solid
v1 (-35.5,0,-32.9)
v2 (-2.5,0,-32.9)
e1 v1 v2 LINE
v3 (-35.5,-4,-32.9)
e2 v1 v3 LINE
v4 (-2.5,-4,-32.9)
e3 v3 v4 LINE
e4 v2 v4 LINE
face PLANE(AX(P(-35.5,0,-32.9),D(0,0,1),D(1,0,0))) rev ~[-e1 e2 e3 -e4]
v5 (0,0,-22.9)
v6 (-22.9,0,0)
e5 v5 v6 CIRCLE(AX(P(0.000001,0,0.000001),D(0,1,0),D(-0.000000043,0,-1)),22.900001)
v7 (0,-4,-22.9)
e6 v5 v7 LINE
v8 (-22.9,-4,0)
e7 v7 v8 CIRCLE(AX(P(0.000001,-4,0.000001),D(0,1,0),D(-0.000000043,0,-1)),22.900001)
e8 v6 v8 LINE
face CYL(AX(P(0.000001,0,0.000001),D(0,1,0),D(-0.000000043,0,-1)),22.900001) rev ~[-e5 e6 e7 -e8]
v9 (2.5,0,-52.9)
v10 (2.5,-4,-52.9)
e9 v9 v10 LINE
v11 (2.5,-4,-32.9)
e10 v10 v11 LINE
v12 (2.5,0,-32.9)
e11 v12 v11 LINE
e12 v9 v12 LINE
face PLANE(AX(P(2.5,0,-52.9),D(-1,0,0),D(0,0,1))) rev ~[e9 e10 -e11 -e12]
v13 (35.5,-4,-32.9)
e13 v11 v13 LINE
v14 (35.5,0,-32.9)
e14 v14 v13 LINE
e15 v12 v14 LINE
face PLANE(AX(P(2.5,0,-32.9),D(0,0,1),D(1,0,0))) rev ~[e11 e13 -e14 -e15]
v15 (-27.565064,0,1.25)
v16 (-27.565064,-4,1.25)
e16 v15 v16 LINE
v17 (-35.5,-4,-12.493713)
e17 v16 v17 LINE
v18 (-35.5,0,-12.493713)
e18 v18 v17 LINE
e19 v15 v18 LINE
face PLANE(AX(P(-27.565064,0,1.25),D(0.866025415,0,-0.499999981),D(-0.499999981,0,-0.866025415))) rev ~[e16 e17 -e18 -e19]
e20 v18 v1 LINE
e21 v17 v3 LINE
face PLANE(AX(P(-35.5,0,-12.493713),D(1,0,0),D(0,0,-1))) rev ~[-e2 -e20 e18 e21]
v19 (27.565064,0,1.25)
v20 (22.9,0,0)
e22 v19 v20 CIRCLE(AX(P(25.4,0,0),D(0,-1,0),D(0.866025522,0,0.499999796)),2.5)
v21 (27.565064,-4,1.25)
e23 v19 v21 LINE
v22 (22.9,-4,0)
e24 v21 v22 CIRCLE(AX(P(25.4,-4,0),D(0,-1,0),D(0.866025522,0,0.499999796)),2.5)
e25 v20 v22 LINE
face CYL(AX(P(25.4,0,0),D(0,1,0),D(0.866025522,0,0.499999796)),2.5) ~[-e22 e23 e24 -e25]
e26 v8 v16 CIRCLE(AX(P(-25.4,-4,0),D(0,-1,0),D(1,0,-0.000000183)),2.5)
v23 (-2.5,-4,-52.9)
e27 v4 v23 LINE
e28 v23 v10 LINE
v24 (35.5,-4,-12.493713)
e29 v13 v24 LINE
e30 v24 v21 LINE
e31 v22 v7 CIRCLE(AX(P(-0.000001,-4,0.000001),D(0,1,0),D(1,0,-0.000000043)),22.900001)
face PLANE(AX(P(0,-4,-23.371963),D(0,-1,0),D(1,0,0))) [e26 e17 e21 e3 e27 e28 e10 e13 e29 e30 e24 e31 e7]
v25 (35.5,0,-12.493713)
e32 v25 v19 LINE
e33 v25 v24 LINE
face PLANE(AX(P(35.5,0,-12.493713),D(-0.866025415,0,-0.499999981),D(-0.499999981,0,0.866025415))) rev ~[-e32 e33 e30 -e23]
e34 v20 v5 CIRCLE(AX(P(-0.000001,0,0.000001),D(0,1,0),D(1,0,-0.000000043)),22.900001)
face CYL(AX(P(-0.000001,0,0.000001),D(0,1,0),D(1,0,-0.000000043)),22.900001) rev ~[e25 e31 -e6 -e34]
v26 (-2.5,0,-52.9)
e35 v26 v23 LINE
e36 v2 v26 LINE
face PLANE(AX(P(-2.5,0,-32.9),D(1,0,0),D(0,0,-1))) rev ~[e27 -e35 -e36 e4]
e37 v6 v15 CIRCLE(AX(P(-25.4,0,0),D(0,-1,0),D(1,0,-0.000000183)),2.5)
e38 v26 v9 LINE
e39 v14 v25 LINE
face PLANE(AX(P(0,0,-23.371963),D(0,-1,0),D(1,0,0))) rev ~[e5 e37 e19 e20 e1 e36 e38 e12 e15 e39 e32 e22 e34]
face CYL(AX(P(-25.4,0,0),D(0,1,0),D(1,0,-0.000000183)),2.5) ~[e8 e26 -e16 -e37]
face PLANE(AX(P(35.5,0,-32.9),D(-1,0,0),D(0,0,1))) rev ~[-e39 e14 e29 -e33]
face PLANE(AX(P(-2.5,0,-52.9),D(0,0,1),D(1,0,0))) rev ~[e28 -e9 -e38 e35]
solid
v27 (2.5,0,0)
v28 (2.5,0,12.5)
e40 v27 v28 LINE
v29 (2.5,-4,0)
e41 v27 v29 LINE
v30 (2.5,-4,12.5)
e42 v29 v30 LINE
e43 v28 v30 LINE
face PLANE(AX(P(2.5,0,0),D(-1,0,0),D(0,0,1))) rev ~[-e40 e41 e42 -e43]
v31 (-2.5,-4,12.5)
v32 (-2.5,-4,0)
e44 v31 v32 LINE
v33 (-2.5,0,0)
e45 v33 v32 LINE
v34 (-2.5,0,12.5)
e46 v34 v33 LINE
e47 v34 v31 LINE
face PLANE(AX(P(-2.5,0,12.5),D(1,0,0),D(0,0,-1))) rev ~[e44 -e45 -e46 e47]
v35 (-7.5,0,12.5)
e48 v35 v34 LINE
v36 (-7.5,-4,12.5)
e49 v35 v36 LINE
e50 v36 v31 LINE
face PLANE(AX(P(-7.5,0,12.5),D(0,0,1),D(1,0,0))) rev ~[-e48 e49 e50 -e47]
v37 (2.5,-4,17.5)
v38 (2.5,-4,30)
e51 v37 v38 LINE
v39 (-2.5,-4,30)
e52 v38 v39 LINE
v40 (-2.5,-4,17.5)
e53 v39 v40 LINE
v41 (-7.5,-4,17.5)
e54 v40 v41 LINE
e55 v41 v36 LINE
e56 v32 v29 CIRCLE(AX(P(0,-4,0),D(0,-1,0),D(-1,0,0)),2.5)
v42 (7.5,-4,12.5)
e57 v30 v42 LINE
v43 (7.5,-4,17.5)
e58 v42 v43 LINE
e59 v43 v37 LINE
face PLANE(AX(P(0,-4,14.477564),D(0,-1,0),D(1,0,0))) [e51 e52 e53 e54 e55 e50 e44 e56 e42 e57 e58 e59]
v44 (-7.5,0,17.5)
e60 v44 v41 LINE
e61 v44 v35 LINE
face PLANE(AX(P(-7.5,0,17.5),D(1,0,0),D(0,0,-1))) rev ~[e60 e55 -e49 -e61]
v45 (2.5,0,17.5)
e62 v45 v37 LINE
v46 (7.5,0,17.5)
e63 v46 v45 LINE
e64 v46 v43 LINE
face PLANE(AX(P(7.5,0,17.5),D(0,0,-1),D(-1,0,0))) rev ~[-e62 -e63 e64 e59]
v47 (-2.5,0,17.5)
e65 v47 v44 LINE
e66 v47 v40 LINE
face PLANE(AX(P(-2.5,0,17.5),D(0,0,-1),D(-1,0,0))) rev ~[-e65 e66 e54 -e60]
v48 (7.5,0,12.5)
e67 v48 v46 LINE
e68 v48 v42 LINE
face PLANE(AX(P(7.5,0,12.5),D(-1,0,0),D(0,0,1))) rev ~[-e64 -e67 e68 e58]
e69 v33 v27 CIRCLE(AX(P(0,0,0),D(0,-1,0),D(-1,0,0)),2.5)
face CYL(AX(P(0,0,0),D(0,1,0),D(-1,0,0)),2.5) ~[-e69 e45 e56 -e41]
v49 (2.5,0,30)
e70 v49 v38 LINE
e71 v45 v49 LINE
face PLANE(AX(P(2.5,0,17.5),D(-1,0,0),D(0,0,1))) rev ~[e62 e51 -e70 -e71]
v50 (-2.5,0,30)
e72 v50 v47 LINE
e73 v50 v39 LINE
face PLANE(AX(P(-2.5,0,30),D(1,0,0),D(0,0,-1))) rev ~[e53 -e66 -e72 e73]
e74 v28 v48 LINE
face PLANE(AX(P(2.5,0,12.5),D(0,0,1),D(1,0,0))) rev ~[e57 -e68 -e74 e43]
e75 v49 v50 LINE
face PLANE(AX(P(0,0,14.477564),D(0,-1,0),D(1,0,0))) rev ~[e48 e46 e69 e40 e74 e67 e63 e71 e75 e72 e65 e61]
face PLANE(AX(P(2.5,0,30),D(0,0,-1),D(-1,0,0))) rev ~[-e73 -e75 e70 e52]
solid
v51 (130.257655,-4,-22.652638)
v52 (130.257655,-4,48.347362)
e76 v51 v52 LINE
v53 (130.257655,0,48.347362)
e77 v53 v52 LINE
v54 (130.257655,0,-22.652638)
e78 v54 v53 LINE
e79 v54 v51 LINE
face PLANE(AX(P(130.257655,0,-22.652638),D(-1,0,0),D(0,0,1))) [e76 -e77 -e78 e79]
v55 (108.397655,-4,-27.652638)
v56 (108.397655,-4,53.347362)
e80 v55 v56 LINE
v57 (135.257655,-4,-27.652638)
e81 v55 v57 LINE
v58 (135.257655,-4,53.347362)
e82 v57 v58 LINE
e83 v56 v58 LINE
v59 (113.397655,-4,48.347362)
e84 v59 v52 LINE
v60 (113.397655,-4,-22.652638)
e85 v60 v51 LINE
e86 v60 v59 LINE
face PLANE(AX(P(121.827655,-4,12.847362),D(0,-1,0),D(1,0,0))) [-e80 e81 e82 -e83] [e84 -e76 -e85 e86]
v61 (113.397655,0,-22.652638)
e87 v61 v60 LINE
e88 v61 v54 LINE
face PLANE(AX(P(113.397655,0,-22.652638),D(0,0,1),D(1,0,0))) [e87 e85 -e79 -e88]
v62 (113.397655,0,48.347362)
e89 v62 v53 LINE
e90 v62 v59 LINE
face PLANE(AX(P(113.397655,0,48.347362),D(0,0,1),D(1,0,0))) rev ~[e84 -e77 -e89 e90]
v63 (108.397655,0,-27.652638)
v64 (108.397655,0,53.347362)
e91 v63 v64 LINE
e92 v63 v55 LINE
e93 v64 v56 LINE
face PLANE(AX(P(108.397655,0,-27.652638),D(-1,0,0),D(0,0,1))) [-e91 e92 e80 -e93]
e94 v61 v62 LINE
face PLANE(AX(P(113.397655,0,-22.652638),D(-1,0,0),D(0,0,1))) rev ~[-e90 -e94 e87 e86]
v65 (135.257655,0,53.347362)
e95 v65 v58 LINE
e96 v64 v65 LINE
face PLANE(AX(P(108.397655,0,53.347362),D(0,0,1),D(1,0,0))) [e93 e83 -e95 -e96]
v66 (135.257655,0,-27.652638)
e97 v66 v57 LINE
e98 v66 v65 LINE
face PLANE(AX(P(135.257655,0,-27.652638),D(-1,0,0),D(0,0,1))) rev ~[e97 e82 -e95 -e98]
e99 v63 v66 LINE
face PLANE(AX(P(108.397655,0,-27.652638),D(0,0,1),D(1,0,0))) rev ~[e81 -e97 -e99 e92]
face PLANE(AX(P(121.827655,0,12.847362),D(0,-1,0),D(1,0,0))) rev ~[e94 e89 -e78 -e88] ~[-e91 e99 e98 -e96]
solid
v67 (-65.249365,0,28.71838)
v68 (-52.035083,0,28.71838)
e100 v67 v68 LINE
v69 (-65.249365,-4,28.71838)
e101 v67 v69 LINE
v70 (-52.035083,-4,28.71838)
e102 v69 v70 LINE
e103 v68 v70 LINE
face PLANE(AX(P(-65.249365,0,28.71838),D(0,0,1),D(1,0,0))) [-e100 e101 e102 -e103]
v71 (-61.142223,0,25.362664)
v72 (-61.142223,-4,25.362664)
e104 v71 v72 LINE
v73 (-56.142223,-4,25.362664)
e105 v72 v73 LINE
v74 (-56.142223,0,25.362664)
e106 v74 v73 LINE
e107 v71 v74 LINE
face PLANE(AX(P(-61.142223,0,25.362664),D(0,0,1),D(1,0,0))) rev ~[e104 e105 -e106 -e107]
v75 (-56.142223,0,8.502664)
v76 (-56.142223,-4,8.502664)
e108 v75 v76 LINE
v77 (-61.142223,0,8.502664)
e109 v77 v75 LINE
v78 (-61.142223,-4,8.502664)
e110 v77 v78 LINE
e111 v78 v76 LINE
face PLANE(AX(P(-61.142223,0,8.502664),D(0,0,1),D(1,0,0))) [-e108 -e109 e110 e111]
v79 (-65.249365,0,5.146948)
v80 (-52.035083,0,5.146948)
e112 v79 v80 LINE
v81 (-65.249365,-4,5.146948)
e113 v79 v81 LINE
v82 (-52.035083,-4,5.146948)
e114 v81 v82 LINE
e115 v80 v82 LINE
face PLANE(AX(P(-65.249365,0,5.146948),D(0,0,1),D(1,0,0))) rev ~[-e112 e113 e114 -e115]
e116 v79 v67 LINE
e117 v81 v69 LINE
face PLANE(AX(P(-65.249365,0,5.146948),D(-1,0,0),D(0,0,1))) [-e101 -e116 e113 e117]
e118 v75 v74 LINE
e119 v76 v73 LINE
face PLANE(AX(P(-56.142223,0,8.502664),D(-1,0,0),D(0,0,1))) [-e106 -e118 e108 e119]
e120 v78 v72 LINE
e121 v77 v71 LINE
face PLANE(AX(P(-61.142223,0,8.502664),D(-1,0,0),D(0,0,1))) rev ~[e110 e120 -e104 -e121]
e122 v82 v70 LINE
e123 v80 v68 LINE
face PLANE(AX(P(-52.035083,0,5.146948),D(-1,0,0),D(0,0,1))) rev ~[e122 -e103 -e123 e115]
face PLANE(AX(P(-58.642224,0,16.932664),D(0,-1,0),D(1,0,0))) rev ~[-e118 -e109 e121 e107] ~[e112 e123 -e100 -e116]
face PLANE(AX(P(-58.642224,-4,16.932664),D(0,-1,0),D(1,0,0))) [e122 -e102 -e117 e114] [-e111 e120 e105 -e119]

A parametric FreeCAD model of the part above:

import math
import FreeCAD as App
import Part
import Sketcher

V = App.Vector
Q = App.Units.Quantity

doc = App.newDocument("Part")
body = doc.addObject("PartDesign::Body", "Body")
body.AllowCompound = True

sketch1 = body.newObject("Sketcher::SketchObject", "Sketch")
sketch1.AttachmentSupport = (doc.getObject("XZ_Plane"), [""])
sketch1.MapMode = "FlatFace"
sketch1.addGeometry(Part.ArcOfCircle(Part.Circle(V(0.000001, 0.000001, 0), V(0, 0, 1), 22.900001), math.radians(-179.999998), math.radians(-90.000002)), False)
sketch1.addGeometry(Part.ArcOfCircle(Part.Circle(V(-25.4, 0, 0), V(0, 0, 1), 2.5), math.radians(-0.00001), math.radians(150.000013)), False)
sketch1.addGeometry(Part.LineSegment(V(-27.565064, 1.25, 0), V(-35.5, -12.493713, 0)), False)
sketch1.addGeometry(Part.LineSegment(V(-35.5, -12.493713, 0), V(-35.5, -32.9, 0)), False)
sketch1.addGeometry(Part.LineSegment(V(-35.5, -32.9, 0), V(-2.5, -32.9, 0)), False)
sketch1.addGeometry(Part.LineSegment(V(-2.5, -32.9, 0), V(-2.5, -52.9, 0)), False)
sketch1.addGeometry(Part.LineSegment(V(-2.5, -52.9, 0), V(2.5, -52.9, 0)), False)
sketch1.addGeometry(Part.LineSegment(V(2.5, -52.9, 0), V(2.5, -32.9, 0)), False)
sketch1.addGeometry(Part.LineSegment(V(2.5, -32.9, 0), V(35.5, -32.9, 0)), False)
sketch1.addGeometry(Part.LineSegment(V(35.5, -32.9, 0), V(35.5, -12.493713, 0)), False)
sketch1.addGeometry(Part.LineSegment(V(35.5, -12.493713, 0), V(27.565064, 1.25, 0)), False)
sketch1.addGeometry(Part.ArcOfCircle(Part.Circle(V(25.4, 0, 0), V(0, 0, 1), 2.5), math.radians(29.999987), math.radians(180.00001)), False)
sketch1.addGeometry(Part.ArcOfCircle(Part.Circle(V(-0.000001, 0.000001, 0), V(0, 0, 1), 22.900001), math.radians(-89.999998), math.radians(-0.000002)), False)
sketch1.addGeometry(Part.LineSegment(V(-2.5, 12.5, 0), V(-2.5, 0, 0)), False)
sketch1.addGeometry(Part.ArcOfCircle(Part.Circle(V(0, 0, 0), V(0, 0, 1), 2.5), math.radians(180), math.radians(360)), False)
sketch1.addGeometry(Part.LineSegment(V(2.5, 0, 0), V(2.5, 12.5, 0)), False)
sketch1.addGeometry(Part.LineSegment(V(2.5, 12.5, 0), V(7.5, 12.5, 0)), False)
sketch1.addGeometry(Part.LineSegment(V(7.5, 12.5, 0), V(7.5, 17.5, 0)), False)
sketch1.addGeometry(Part.LineSegment(V(7.5, 17.5, 0), V(2.5, 17.5, 0)), False)
sketch1.addGeometry(Part.LineSegment(V(2.5, 17.5, 0), V(2.5, 30, 0)), False)
sketch1.addGeometry(Part.LineSegment(V(2.5, 30, 0), V(-2.5, 30, 0)), False)
sketch1.addGeometry(Part.LineSegment(V(-2.5, 30, 0), V(-2.5, 17.5, 0)), False)
sketch1.addGeometry(Part.LineSegment(V(-2.5, 17.5, 0), V(-7.5, 17.5, 0)), False)
sketch1.addGeometry(Part.LineSegment(V(-7.5, 17.5, 0), V(-7.5, 12.5, 0)), False)
sketch1.addGeometry(Part.LineSegment(V(-7.5, 12.5, 0), V(-2.5, 12.5, 0)), False)
sketch1.addConstraint(Sketcher.Constraint("Tangent", 0, 1, 1, 1))
sketch1.addConstraint(Sketcher.Constraint("Tangent", 1, 2, 2, 1))
sketch1.addConstraint(Sketcher.Constraint("Coincident", 2, 2, 3, 1))
sketch1.addConstraint(Sketcher.Constraint("Coincident", 3, 2, 4, 1))
sketch1.addConstraint(Sketcher.Constraint("Coincident", 4, 2, 5, 1))
sketch1.addConstraint(Sketcher.Constraint("Coincident", 5, 2, 6, 1))
sketch1.addConstraint(Sketcher.Constraint("Coincident", 6, 2, 7, 1))
sketch1.addConstraint(Sketcher.Constraint("Coincident", 7, 2, 8, 1))
sketch1.addConstraint(Sketcher.Constraint("Coincident", 8, 2, 9, 1))
sketch1.addConstraint(Sketcher.Constraint("Coincident", 9, 2, 10, 1))
sketch1.addConstraint(Sketcher.Constraint("Tangent", 10, 2, 11, 1))
sketch1.addConstraint(Sketcher.Constraint("Tangent", 11, 2, 12, 2))
sketch1.addConstraint(Sketcher.Constraint("Tangent", 12, 1, 0, 2))
sketch1.addConstraint(Sketcher.Constraint("Tangent", 13, 2, 14, 1))
sketch1.addConstraint(Sketcher.Constraint("Tangent", 14, 2, 15, 1))
sketch1.addConstraint(Sketcher.Constraint("Coincident", 15, 2, 16, 1))
sketch1.addConstraint(Sketcher.Constraint("Coincident", 16, 2, 17, 1))
sketch1.addConstraint(Sketcher.Constraint("Coincident", 17, 2, 18, 1))
sketch1.addConstraint(Sketcher.Constraint("Coincident", 18, 2, 19, 1))
sketch1.addConstraint(Sketcher.Constraint("Coincident", 19, 2, 20, 1))
sketch1.addConstraint(Sketcher.Constraint("Coincident", 20, 2, 21, 1))
sketch1.addConstraint(Sketcher.Constraint("Coincident", 21, 2, 22, 1))
sketch1.addConstraint(Sketcher.Constraint("Coincident", 22, 2, 23, 1))
sketch1.addConstraint(Sketcher.Constraint("Coincident", 23, 2, 24, 1))
sketch1.addConstraint(Sketcher.Constraint("Coincident", 24, 2, 13, 1))
sketch1.addConstraint(Sketcher.Constraint("Vertical", 3))
sketch1.addConstraint(Sketcher.Constraint("Horizontal", 4))
sketch1.addConstraint(Sketcher.Constraint("Vertical", 5))
sketch1.addConstraint(Sketcher.Constraint("Horizontal", 6))
sketch1.addConstraint(Sketcher.Constraint("Vertical", 7))
sketch1.addConstraint(Sketcher.Constraint("Horizontal", 8))
sketch1.addConstraint(Sketcher.Constraint("Vertical", 9))
sketch1.addConstraint(Sketcher.Constraint("Vertical", 13))
sketch1.addConstraint(Sketcher.Constraint("Vertical", 15))
sketch1.addConstraint(Sketcher.Constraint("Horizontal", 16))
sketch1.addConstraint(Sketcher.Constraint("Vertical", 17))
sketch1.addConstraint(Sketcher.Constraint("Horizontal", 18))
sketch1.addConstraint(Sketcher.Constraint("Vertical", 19))
sketch1.addConstraint(Sketcher.Constraint("Horizontal", 20))
sketch1.addConstraint(Sketcher.Constraint("Vertical", 21))
sketch1.addConstraint(Sketcher.Constraint("Horizontal", 22))
sketch1.addConstraint(Sketcher.Constraint("Vertical", 23))
sketch1.addConstraint(Sketcher.Constraint("Horizontal", 24))
sketch1.addConstraint(Sketcher.Constraint("Coincident", 0, 3, -1, 1))
sketch1.addConstraint(Sketcher.Constraint("Coincident", 14, 3, -1, 1))
sketch1.addConstraint(Sketcher.Constraint("Equal", 1, 11))
sketch1.addConstraint(Sketcher.Constraint("Equal", 0, 12))
sketch1.addConstraint(Sketcher.Constraint("Equal", 11, 14))
sketch1.addConstraint(Sketcher.Constraint("Symmetric", 4, 2, 7, 2, -2))
sketch1.addConstraint(Sketcher.Constraint("Symmetric", 2, 2, 9, 2, -2))
sketch1.addConstraint(Sketcher.Constraint("Symmetric", 18, 2, 21, 2, -2))
sketch1.addConstraint(Sketcher.Constraint("Symmetric", 16, 2, 23, 2, -2))
sketch1.addConstraint(Sketcher.Constraint("PointOnObject", 1, 3, -1))
sketch1.addConstraint(Sketcher.Constraint("PointOnObject", 11, 3, -1))
sketch1.addConstraint(Sketcher.Constraint("PointOnObject", 12, 1, -2))
sketch1.addConstraint(Sketcher.Constraint("Vertical", 5, 2, 13, 2))
sketch1.addConstraint(Sketcher.Constraint("Vertical", 15, 2, 18, 2))
sketch1.addConstraint(Sketcher.Constraint("Equal", 6, 16))
sketch1.addConstraint(Sketcher.Constraint("Equal", 24, 17))
sketch1.addConstraint(Sketcher.Constraint("Equal", 15, 19))
sketch1.addConstraint(Sketcher.Constraint("Radius", 0, Q("22.900001 mm")))
sketch1.addConstraint(Sketcher.Constraint("Radius", 1, Q("2.5 mm")))
sketch1.addConstraint(Sketcher.Constraint("DistanceX", 4, 1, 4, 2, Q("33 mm")))
sketch1.addConstraint(Sketcher.Constraint("DistanceY", 5, 2, 5, 1, Q("20 mm")))
sketch1.addConstraint(Sketcher.Constraint("Angle", 2, Q("-119.999999 deg")))
sketch1.addConstraint(Sketcher.Constraint("DistanceY", 13, 2, 13, 1, Q("12.5 mm")))
sketch1.addConstraint(Sketcher.Constraint("DistanceY", 4, 2, 12, 1, Q("10 mm")))
pad1 = body.newObject("PartDesign::Pad", "Pad")
pad1.Profile = sketch1
pad1.Length = 4
body2 = doc.addObject("PartDesign::Body", "Body001")
body2.AllowCompound = True

sketch2 = body2.newObject("Sketcher::SketchObject", "Sketch001")
sketch2.AttachmentSupport = (doc.getObject("XZ_Plane001"), [""])
sketch2.MapMode = "FlatFace"
sketch2.addGeometry(Part.LineSegment(V(-65.249365, 28.71838, 0), V(-65.249365, 5.146948, 0)), False)
sketch2.addGeometry(Part.LineSegment(V(-65.249365, 5.146948, 0), V(-52.035083, 5.146948, 0)), False)
sketch2.addGeometry(Part.LineSegment(V(-52.035083, 5.146948, 0), V(-52.035083, 28.71838, 0)), False)
sketch2.addGeometry(Part.LineSegment(V(-52.035083, 28.71838, 0), V(-65.249365, 28.71838, 0)), False)
sketch2.addGeometry(Part.LineSegment(V(-56.142223, 8.502664, 0), V(-61.142223, 8.502664, 0)), False)
sketch2.addGeometry(Part.LineSegment(V(-61.142223, 8.502664, 0), V(-61.142223, 25.362664, 0)), False)
sketch2.addGeometry(Part.LineSegment(V(-61.142223, 25.362664, 0), V(-56.142223, 25.362664, 0)), False)
sketch2.addGeometry(Part.LineSegment(V(-56.142223, 25.362664, 0), V(-56.142223, 8.502664, 0)), False)
sketch2.addGeometry(Part.LineSegment(V(108.397655, 53.347362, 0), V(108.397655, -27.652638, 0)), False)
sketch2.addGeometry(Part.LineSegment(V(108.397655, -27.652638, 0), V(135.257655, -27.652638, 0)), False)
sketch2.addGeometry(Part.LineSegment(V(135.257655, -27.652638, 0), V(135.257655, 53.347362, 0)), False)
sketch2.addGeometry(Part.LineSegment(V(135.257655, 53.347362, 0), V(108.397655, 53.347362, 0)), False)
sketch2.addGeometry(Part.LineSegment(V(130.257655, -22.652638, 0), V(113.397655, -22.652638, 0)), False)
sketch2.addGeometry(Part.LineSegment(V(113.397655, -22.652638, 0), V(113.397655, 48.347362, 0)), False)
sketch2.addGeometry(Part.LineSegment(V(113.397655, 48.347362, 0), V(130.257655, 48.347362, 0)), False)
sketch2.addGeometry(Part.LineSegment(V(130.257655, 48.347362, 0), V(130.257655, -22.652638, 0)), False)
sketch2.addConstraint(Sketcher.Constraint("Coincident", 0, 2, 1, 1))
sketch2.addConstraint(Sketcher.Constraint("Coincident", 1, 2, 2, 1))
sketch2.addConstraint(Sketcher.Constraint("Coincident", 2, 2, 3, 1))
sketch2.addConstraint(Sketcher.Constraint("Coincident", 3, 2, 0, 1))
sketch2.addConstraint(Sketcher.Constraint("Coincident", 4, 2, 5, 1))
sketch2.addConstraint(Sketcher.Constraint("Coincident", 5, 2, 6, 1))
sketch2.addConstraint(Sketcher.Constraint("Coincident", 6, 2, 7, 1))
sketch2.addConstraint(Sketcher.Constraint("Coincident", 7, 2, 4, 1))
sketch2.addConstraint(Sketcher.Constraint("Coincident", 8, 2, 9, 1))
sketch2.addConstraint(Sketcher.Constraint("Coincident", 9, 2, 10, 1))
sketch2.addConstraint(Sketcher.Constraint("Coincident", 10, 2, 11, 1))
sketch2.addConstraint(Sketcher.Constraint("Coincident", 11, 2, 8, 1))
sketch2.addConstraint(Sketcher.Constraint("Coincident", 12, 2, 13, 1))
sketch2.addConstraint(Sketcher.Constraint("Coincident", 13, 2, 14, 1))
sketch2.addConstraint(Sketcher.Constraint("Coincident", 14, 2, 15, 1))
sketch2.addConstraint(Sketcher.Constraint("Coincident", 15, 2, 12, 1))
sketch2.addConstraint(Sketcher.Constraint("Vertical", 0))
sketch2.addConstraint(Sketcher.Constraint("Horizontal", 1))
sketch2.addConstraint(Sketcher.Constraint("Vertical", 2))
sketch2.addConstraint(Sketcher.Constraint("Horizontal", 3))
sketch2.addConstraint(Sketcher.Constraint("Horizontal", 4))
sketch2.addConstraint(Sketcher.Constraint("Vertical", 5))
sketch2.addConstraint(Sketcher.Constraint("Horizontal", 6))
sketch2.addConstraint(Sketcher.Constraint("Vertical", 7))
sketch2.addConstraint(Sketcher.Constraint("Vertical", 8))
sketch2.addConstraint(Sketcher.Constraint("Horizontal", 9))
sketch2.addConstraint(Sketcher.Constraint("Vertical", 10))
sketch2.addConstraint(Sketcher.Constraint("Horizontal", 11))
sketch2.addConstraint(Sketcher.Constraint("Horizontal", 12))
sketch2.addConstraint(Sketcher.Constraint("Vertical", 13))
sketch2.addConstraint(Sketcher.Constraint("Horizontal", 14))
sketch2.addConstraint(Sketcher.Constraint("Vertical", 15))
sketch2.addConstraint(Sketcher.Constraint("Equal", 14, 5))
sketch2.addConstraint(Sketcher.Constraint("DistanceX", 4, 2, 4, 1, Q("5 mm")))
sketch2.addConstraint(Sketcher.Constraint("DistanceY", 8, 2, 8, 1, Q("81 mm")))
sketch2.addConstraint(Sketcher.Constraint("DistanceY", 13, 1, 13, 2, Q("71 mm")))
sketch2.addConstraint(Sketcher.Constraint("DistanceX", 8, 2, 12, 2, Q("5 mm")))
sketch2.addConstraint(Sketcher.Constraint("DistanceY", 8, 2, 12, 2, Q("5 mm")))
sketch2.addConstraint(Sketcher.Constraint("DistanceX", 14, 2, 10, 2, Q("5 mm")))
sketch2.addConstraint(Sketcher.Constraint("DistanceX", 9, 1, 9, 2, Q("26.86 mm")))
sketch2.addConstraint(Sketcher.Constraint("DistanceY", 8, 2, 6, 2, Q("53.015302 mm")))
sketch2.addConstraint(Sketcher.Constraint("DistanceX", 1, 1, 1, 2, Q("13.214283 mm")))
sketch2.addConstraint(Sketcher.Constraint("DistanceY", 0, 2, 0, 1, Q("23.571432 mm")))
sketch2.addConstraint(Sketcher.Constraint("DistanceY", -1, 1, 2, 2, Q("28.71838 mm")))
sketch2.addConstraint(Sketcher.Constraint("DistanceY", -1, 1, 10, 2, Q("53.347362 mm")))
sketch2.addConstraint(Sketcher.Constraint("DistanceX", 4, 2, 1, 2, Q("9.10714 mm")))
sketch2.addConstraint(Sketcher.Constraint("DistanceX", 7, 2, 9, 2, Q("191.399878 mm")))
sketch2.addConstraint(Sketcher.Constraint("DistanceX", 0, 2, -1, 1, Q("65.249365 mm")))
pad2 = body2.newObject("PartDesign::Pad", "Pad001")
pad2.Profile = sketch2
pad2.Length = 4

doc.recompute()
